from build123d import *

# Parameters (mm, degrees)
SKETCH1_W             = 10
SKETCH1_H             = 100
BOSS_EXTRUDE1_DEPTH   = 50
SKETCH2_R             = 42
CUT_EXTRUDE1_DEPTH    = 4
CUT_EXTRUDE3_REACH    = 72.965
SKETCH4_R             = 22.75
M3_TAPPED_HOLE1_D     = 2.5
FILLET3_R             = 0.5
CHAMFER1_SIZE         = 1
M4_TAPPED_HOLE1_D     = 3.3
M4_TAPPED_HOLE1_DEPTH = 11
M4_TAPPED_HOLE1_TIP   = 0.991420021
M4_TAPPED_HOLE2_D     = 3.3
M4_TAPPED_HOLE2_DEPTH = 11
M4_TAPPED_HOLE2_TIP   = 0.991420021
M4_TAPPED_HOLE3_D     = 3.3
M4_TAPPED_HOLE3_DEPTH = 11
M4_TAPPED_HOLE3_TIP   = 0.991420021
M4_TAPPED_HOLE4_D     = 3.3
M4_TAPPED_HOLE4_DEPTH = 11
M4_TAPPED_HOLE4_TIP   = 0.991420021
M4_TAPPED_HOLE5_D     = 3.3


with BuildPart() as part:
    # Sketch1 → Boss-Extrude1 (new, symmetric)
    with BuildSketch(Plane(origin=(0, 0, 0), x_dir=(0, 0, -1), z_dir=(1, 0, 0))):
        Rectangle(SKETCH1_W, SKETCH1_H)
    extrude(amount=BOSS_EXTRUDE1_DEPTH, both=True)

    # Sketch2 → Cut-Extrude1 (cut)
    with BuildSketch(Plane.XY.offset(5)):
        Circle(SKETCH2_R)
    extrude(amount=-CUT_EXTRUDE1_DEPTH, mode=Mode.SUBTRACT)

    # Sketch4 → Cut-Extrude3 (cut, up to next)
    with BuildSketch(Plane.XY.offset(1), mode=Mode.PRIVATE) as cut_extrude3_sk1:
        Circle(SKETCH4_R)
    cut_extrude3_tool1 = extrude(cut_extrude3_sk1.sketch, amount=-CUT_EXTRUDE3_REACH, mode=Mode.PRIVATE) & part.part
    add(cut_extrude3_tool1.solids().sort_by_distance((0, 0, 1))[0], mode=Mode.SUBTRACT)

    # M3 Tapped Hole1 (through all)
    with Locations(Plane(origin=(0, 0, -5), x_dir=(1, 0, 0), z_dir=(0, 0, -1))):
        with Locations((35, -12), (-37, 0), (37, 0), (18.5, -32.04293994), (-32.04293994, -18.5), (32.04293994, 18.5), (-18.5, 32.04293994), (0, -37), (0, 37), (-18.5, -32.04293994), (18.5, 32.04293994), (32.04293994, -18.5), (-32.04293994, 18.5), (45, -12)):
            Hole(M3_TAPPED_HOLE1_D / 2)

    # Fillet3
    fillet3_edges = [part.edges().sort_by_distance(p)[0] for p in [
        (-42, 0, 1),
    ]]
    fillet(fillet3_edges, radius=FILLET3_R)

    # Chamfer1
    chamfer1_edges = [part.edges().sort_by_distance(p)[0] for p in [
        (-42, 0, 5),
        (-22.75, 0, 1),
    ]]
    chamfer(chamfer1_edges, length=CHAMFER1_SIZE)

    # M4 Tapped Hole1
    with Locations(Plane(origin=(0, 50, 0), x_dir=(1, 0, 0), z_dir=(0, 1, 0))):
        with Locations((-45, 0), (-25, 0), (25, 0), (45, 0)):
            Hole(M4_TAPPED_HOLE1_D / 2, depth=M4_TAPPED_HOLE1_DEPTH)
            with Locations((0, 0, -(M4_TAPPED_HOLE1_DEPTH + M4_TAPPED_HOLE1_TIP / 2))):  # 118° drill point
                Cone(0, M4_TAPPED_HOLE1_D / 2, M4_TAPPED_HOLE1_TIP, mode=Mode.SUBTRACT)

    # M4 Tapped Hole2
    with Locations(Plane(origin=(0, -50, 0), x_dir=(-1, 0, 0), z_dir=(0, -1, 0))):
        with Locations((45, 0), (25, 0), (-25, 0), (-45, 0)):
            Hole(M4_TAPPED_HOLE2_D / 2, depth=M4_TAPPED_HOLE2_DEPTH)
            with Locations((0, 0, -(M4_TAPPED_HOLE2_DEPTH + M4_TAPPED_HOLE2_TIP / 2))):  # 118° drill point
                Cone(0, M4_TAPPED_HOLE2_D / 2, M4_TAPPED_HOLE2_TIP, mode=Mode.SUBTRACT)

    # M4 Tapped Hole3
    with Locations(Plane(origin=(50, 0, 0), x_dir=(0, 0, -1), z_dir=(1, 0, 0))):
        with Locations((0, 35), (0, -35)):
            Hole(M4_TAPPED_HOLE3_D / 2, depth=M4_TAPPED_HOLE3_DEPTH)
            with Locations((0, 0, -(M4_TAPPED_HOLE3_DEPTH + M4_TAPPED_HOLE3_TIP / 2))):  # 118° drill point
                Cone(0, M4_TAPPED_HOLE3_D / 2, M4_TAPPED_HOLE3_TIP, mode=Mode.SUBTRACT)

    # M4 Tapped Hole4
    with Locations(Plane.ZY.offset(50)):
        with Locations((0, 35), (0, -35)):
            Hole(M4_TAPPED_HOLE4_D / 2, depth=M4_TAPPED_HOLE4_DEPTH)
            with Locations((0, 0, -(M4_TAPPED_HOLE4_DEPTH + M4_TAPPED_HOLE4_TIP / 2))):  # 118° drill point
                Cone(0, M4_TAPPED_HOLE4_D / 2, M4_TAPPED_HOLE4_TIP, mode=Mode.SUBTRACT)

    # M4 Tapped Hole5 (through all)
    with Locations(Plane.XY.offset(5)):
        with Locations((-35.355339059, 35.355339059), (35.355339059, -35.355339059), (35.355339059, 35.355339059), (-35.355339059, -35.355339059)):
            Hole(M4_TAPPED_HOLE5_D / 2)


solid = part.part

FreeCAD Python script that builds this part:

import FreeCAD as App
import Part
import Sketcher


def edges_at(feature, points):
    """Names of the edges that pass closest to the given points."""
    edges = feature.Shape.Edges
    near = lambda p: min(range(len(edges)), key=lambda i: edges[i].distToShape(Part.Vertex(*p))[0])
    return sorted({f"Edge{near(p) + 1}" for p in points})

doc = App.newDocument("Part")
body = doc.addObject("PartDesign::Body", "Body")

# Sketch on YZ plane
sketch1 = body.newObject("Sketcher::SketchObject", "Sketch")
sketch1.AttachmentSupport = (doc.getObject("YZ_Plane"), [""])
sketch1.MapMode = "FlatFace"
sketch1.addGeometry([
    Part.LineSegment(App.Vector(50, 5, 0), App.Vector(-50, 5, 0)),
    Part.LineSegment(App.Vector(-50, 5, 0), App.Vector(-50, -5, 0)),
    Part.LineSegment(App.Vector(-50, -5, 0), App.Vector(50, -5, 0)),
    Part.LineSegment(App.Vector(50, -5, 0), App.Vector(50, 5, 0)),
], False)
sketch1.addConstraint([
    Sketcher.Constraint("Coincident", 0, 2, 1, 1),
    Sketcher.Constraint("Coincident", 1, 2, 2, 1),
    Sketcher.Constraint("Coincident", 2, 2, 3, 1),
    Sketcher.Constraint("Coincident", 3, 2, 0, 1),
    Sketcher.Constraint("Horizontal", 0),
    Sketcher.Constraint("Vertical", 1),
    Sketcher.Constraint("Horizontal", 2),
    Sketcher.Constraint("Vertical", 3),
    Sketcher.Constraint("Symmetric", 0, 2, 2, 2, -1, 1),
    Sketcher.Constraint("DistanceX", 0, 2, 0, 1, 100.0),
    Sketcher.Constraint("DistanceY", 1, 2, 1, 1, 10.0),
])
pad1 = body.newObject("PartDesign::Pad", "Pad")
pad1.Profile = sketch1
pad1.Length = 100
pad1.Midplane = True

# Sketch on XY plane
sketch2 = body.newObject("Sketcher::SketchObject", "Sketch001")
sketch2.AttachmentSupport = (doc.getObject("XY_Plane"), [""])
sketch2.MapMode = "FlatFace"
sketch2.AttachmentOffset = App.Placement(App.Vector(0, 0, 5), App.Rotation())
sketch2.addGeometry(Part.Circle(App.Vector(0, 0, 0), App.Vector(0, 0, 1), 42), False)
sketch2.addConstraint([
    Sketcher.Constraint("Coincident", 0, 3, -1, 1),
    Sketcher.Constraint("Diameter", 0, 84.0),
])
pocket1 = body.newObject("PartDesign::Pocket", "Pocket")
pocket1.Profile = sketch2
pocket1.Length = 4

# Sketch on XY plane
sketch3 = body.newObject("Sketcher::SketchObject", "Sketch002")
sketch3.AttachmentSupport = (doc.getObject("XY_Plane"), [""])
sketch3.MapMode = "FlatFace"
sketch3.AttachmentOffset = App.Placement(App.Vector(0, 0, 1), App.Rotation())
sketch3.addGeometry(Part.Circle(App.Vector(0, 0, 0), App.Vector(0, 0, 1), 23), False)
sketch3.addConstraint([
    Sketcher.Constraint("Coincident", 0, 3, -1, 1),
    Sketcher.Constraint("Diameter", 0, 45.5),
])
pocket2 = body.newObject("PartDesign::Pocket", "Pocket001")
pocket2.Profile = sketch3
pocket2.Type = "UpToFirst"

# Sketch on XY plane
sketch4 = body.newObject("Sketcher::SketchObject", "Sketch003")
sketch4.AttachmentSupport = (doc.getObject("XY_Plane"), [""])
sketch4.MapMode = "FlatFace"
sketch4.AttachmentOffset = App.Placement(App.Vector(0, 0, -5), App.Rotation())
sketch4.addGeometry([
    Part.Circle(App.Vector(35, 12, 0), App.Vector(0, 0, 1), 1.2),  # 0
    Part.Circle(App.Vector(-37, 0, 0), App.Vector(0, 0, 1), 1.2),  # 1
    Part.Circle(App.Vector(37, 0, 0), App.Vector(0, 0, 1), 1.2),  # 2
    Part.Circle(App.Vector(18.5, 32, 0), App.Vector(0, 0, 1), 1.2),  # 3
    Part.Circle(App.Vector(-32, 18.5, 0), App.Vector(0, 0, 1), 1.2),  # 4
    Part.Circle(App.Vector(32, -18.5, 0), App.Vector(0, 0, 1), 1.2),  # 5
    Part.Circle(App.Vector(-18.5, -32, 0), App.Vector(0, 0, 1), 1.2),  # 6
    Part.Circle(App.Vector(0, 37, 0), App.Vector(0, 0, 1), 1.2),  # 7
    Part.Circle(App.Vector(0, -37, 0), App.Vector(0, 0, 1), 1.2),  # 8
    Part.Circle(App.Vector(-18.5, 32, 0), App.Vector(0, 0, 1), 1.2),  # 9
    Part.Circle(App.Vector(18.5, -32, 0), App.Vector(0, 0, 1), 1.2),  # 10
    Part.Circle(App.Vector(32, 18.5, 0), App.Vector(0, 0, 1), 1.2),  # 11
    Part.Circle(App.Vector(-32, -18.5, 0), App.Vector(0, 0, 1), 1.2),  # 12
    Part.Circle(App.Vector(45, 12, 0), App.Vector(0, 0, 1), 1.2),  # 13
], False)
sketch4.addConstraint([
    Sketcher.Constraint("Equal", 0, 1),
    Sketcher.Constraint("Equal", 1, 2),
    Sketcher.Constraint("Equal", 2, 3),
    Sketcher.Constraint("Equal", 3, 4),
    Sketcher.Constraint("Equal", 4, 5),
    Sketcher.Constraint("Equal", 5, 6),
    Sketcher.Constraint("Equal", 6, 7),
    Sketcher.Constraint("Equal", 7, 8),
    Sketcher.Constraint("Equal", 8, 9),
    Sketcher.Constraint("Equal", 9, 10),
    Sketcher.Constraint("Equal", 10, 11),
    Sketcher.Constraint("Equal", 11, 12),
    Sketcher.Constraint("Equal", 12, 13),
    Sketcher.Constraint("Symmetric", 1, 3, 2, 3, -1, 1),
    Sketcher.Constraint("Symmetric", 4, 3, 5, 3, -1, 1),
    Sketcher.Constraint("Symmetric", 3, 3, 6, 3, -1, 1),
    Sketcher.Constraint("Symmetric", 7, 3, 8, 3, -1, 1),
    Sketcher.Constraint("Symmetric", 9, 3, 10, 3, -1, 1),
    Sketcher.Constraint("Symmetric", 11, 3, 12, 3, -1, 1),
    Sketcher.Constraint("Symmetric", 3, 3, 9, 3, -2),
    Sketcher.Constraint("Symmetric", 4, 3, 11, 3, -2),
    Sketcher.Constraint("PointOnObject", 1, 3, -1),
    Sketcher.Constraint("PointOnObject", 7, 3, -2),
    Sketcher.Constraint("Horizontal", 0, 3, 13, 3),
    Sketcher.Constraint("Diameter", 0, 2.5),
    Sketcher.Constraint("DistanceX", -1, 1, 0, 3, 35.0),
    Sketcher.Constraint("DistanceY", -1, 1, 0, 3, 12.0),
    Sketcher.Constraint("DistanceX", 1, 3, -1, 1, 37.0),
    Sketcher.Constraint("DistanceY", -1, 1, 7, 3, 37.0),
    Sketcher.Constraint("DistanceX", -1, 1, 13, 3, 45.0),
    Sketcher.Constraint("DistanceY", 5, 3, 4, 3, 37.0),
    Sketcher.Constraint("DistanceX", 9, 3, 3, 3, 37.0),
    Sketcher.Constraint("DistanceY", -1, 1, 3, 3, 32.04294),
    Sketcher.Constraint("DistanceX", 4, 3, -1, 1, 32.04294),
])
doc.recompute()
hole = body.newObject("PartDesign::Hole", "Hole")
hole.Profile = sketch4
hole.ThreadType = "None"
hole.Diameter = 2.5
hole.DepthType = "ThroughAll"
hole.Reversed = True
doc.recompute()

fillet = body.newObject("PartDesign::Fillet", "Fillet")
fillet.Base = (hole, edges_at(hole, [(-42, 0, 1)]))
fillet.Radius = 0.5
doc.recompute()

chamfer = body.newObject("PartDesign::Chamfer", "Chamfer")
chamfer.Base = (fillet, edges_at(fillet, [(-42, 0, 5), (-22.75, 0, 1)]))
chamfer.Size = 1

# Sketch on XZ plane
sketch5 = body.newObject("Sketcher::SketchObject", "Sketch004")
sketch5.AttachmentSupport = (doc.getObject("XZ_Plane"), [""])
sketch5.MapMode = "FlatFace"
sketch5.AttachmentOffset = App.Placement(App.Vector(0, 0, -50), App.Rotation())
sketch5.addGeometry([
    Part.Circle(App.Vector(-45, 0, 0), App.Vector(0, 0, 1), 1.6),
    Part.Circle(App.Vector(-25, 0, 0), App.Vector(0, 0, 1), 1.6),
    Part.Circle(App.Vector(25, 0, 0), App.Vector(0, 0, 1), 1.6),
    Part.Circle(App.Vector(45, 0, 0), App.Vector(0, 0, 1), 1.6),
], False)
sketch5.addConstraint([
    Sketcher.Constraint("Equal", 0, 1),
    Sketcher.Constraint("Equal", 1, 2),
    Sketcher.Constraint("Equal", 2, 3),
    Sketcher.Constraint("Symmetric", 1, 3, 2, 3, -1, 1),
    Sketcher.Constraint("Symmetric", 0, 3, 3, 3, -1, 1),
    Sketcher.Constraint("PointOnObject", 0, 3, -1),
    Sketcher.Constraint("PointOnObject", 1, 3, -1),
    Sketcher.Constraint("Diameter", 0, 3.3),
    Sketcher.Constraint("DistanceX", 0, 3, -1, 1, 45.0),
    Sketcher.Constraint("DistanceX", 1, 3, -1, 1, 25.0),
])
doc.recompute()
hole2 = body.newObject("PartDesign::Hole", "Hole001")
hole2.Profile = sketch5
hole2.ThreadType = "None"
hole2.Diameter = 3.3
hole2.DepthType = "Dimension"
hole2.Depth = 11
hole2.DrillPoint = "Angled"
hole2.DrillPointAngle = 118
hole2.Reversed = True

# Sketch on XZ plane
sketch6 = body.newObject("Sketcher::SketchObject", "Sketch005")
sketch6.AttachmentSupport = (doc.getObject("XZ_Plane"), [""])
sketch6.MapMode = "FlatFace"
sketch6.AttachmentOffset = App.Placement(App.Vector(0, 0, 50), App.Rotation())
sketch6.addGeometry([
    Part.Circle(App.Vector(-45, 0, 0), App.Vector(0, 0, 1), 1.6),
    Part.Circle(App.Vector(-25, 0, 0), App.Vector(0, 0, 1), 1.6),
    Part.Circle(App.Vector(25, 0, 0), App.Vector(0, 0, 1), 1.6),
    Part.Circle(App.Vector(45, 0, 0), App.Vector(0, 0, 1), 1.6),
], False)
sketch6.addConstraint([
    Sketcher.Constraint("Equal", 0, 1),
    Sketcher.Constraint("Equal", 1, 2),
    Sketcher.Constraint("Equal", 2, 3),
    Sketcher.Constraint("Symmetric", 1, 3, 2, 3, -1, 1),
    Sketcher.Constraint("Symmetric", 0, 3, 3, 3, -1, 1),
    Sketcher.Constraint("PointOnObject", 0, 3, -1),
    Sketcher.Constraint("PointOnObject", 1, 3, -1),
    Sketcher.Constraint("Diameter", 0, 3.3),
    Sketcher.Constraint("DistanceX", 0, 3, -1, 1, 45.0),
    Sketcher.Constraint("DistanceX", 1, 3, -1, 1, 25.0),
])
doc.recompute()
hole3 = body.newObject("PartDesign::Hole", "Hole002")
hole3.Profile = sketch6
hole3.ThreadType = "None"
hole3.Diameter = 3.3
hole3.DepthType = "Dimension"
hole3.Depth = 11
hole3.DrillPoint = "Angled"
hole3.DrillPointAngle = 118

# Sketch on YZ plane
sketch7 = body.newObject("Sketcher::SketchObject", "Sketch006")
sketch7.AttachmentSupport = (doc.getObject("YZ_Plane"), [""])
sketch7.MapMode = "FlatFace"
sketch7.AttachmentOffset = App.Placement(App.Vector(0, 0, 50), App.Rotation())
sketch7.addGeometry([
    Part.Circle(App.Vector(35, 0, 0), App.Vector(0, 0, 1), 1.6),
    Part.Circle(App.Vector(-35, 0, 0), App.Vector(0, 0, 1), 1.6),
], False)
sketch7.addConstraint([
    Sketcher.Constraint("Equal", 0, 1),
    Sketcher.Constraint("Symmetric", 0, 3, 1, 3, -1, 1),
    Sketcher.Constraint("PointOnObject", 0, 3, -1),
    Sketcher.Constraint("Diameter", 0, 3.3),
    Sketcher.Constraint("DistanceX", -1, 1, 0, 3, 35.0),
])
doc.recompute()
hole4 = body.newObject("PartDesign::Hole", "Hole003")
hole4.Profile = sketch7
hole4.ThreadType = "None"
hole4.Diameter = 3.3
hole4.DepthType = "Dimension"
hole4.Depth = 11
hole4.DrillPoint = "Angled"
hole4.DrillPointAngle = 118

# Sketch on YZ plane
sketch8 = body.newObject("Sketcher::SketchObject", "Sketch007")
sketch8.AttachmentSupport = (doc.getObject("YZ_Plane"), [""])
sketch8.MapMode = "FlatFace"
sketch8.AttachmentOffset = App.Placement(App.Vector(0, 0, -50), App.Rotation())
sketch8.addGeometry([
    Part.Circle(App.Vector(35, 0, 0), App.Vector(0, 0, 1), 1.6),
    Part.Circle(App.Vector(-35, 0, 0), App.Vector(0, 0, 1), 1.6),
], False)
sketch8.addConstraint([
    Sketcher.Constraint("Equal", 0, 1),
    Sketcher.Constraint("Symmetric", 0, 3, 1, 3, -1, 1),
    Sketcher.Constraint("PointOnObject", 0, 3, -1),
    Sketcher.Constraint("Diameter", 0, 3.3),
    Sketcher.Constraint("DistanceX", -1, 1, 0, 3, 35.0),
])
doc.recompute()
hole5 = body.newObject("PartDesign::Hole", "Hole004")
hole5.Profile = sketch8
hole5.ThreadType = "None"
hole5.Diameter = 3.3
hole5.DepthType = "Dimension"
hole5.Depth = 11
hole5.DrillPoint = "Angled"
hole5.DrillPointAngle = 118
hole5.Reversed = True

# Sketch on XY plane
sketch9 = body.newObject("Sketcher::SketchObject", "Sketch008")
sketch9.AttachmentSupport = (doc.getObject("XY_Plane"), [""])
sketch9.MapMode = "FlatFace"
sketch9.AttachmentOffset = App.Placement(App.Vector(0, 0, 5), App.Rotation())
sketch9.addGeometry([
    Part.Circle(App.Vector(-35.4, 35.4, 0), App.Vector(0, 0, 1), 1.6),
    Part.Circle(App.Vector(35.4, -35.4, 0), App.Vector(0, 0, 1), 1.6),
    Part.Circle(App.Vector(35.4, 35.4, 0), App.Vector(0, 0, 1), 1.6),
    Part.Circle(App.Vector(-35.4, -35.4, 0), App.Vector(0, 0, 1), 1.6),
], False)
sketch9.addConstraint([
    Sketcher.Constraint("Equal", 0, 1),
    Sketcher.Constraint("Equal", 1, 2),
    Sketcher.Constraint("Equal", 2, 3),
    Sketcher.Constraint("Symmetric", 0, 3, 1, 3, -1, 1),
    Sketcher.Constraint("Symmetric", 2, 3, 3, 3, -1, 1),
    Sketcher.Constraint("Symmetric", 0, 3, 2, 3, -2),
    Sketcher.Constraint("Diameter", 0, 3.3),
    Sketcher.Constraint("DistanceX", 0, 3, -1, 1, 35.355339),
    Sketcher.Constraint("DistanceY", -1, 1, 0, 3, 35.355339),
])
doc.recompute()
hole6 = body.newObject("PartDesign::Hole", "Hole005")
hole6.Profile = sketch9
hole6.ThreadType = "None"
hole6.Diameter = 3.3
hole6.DepthType = "ThroughAll"

doc.recompute()
